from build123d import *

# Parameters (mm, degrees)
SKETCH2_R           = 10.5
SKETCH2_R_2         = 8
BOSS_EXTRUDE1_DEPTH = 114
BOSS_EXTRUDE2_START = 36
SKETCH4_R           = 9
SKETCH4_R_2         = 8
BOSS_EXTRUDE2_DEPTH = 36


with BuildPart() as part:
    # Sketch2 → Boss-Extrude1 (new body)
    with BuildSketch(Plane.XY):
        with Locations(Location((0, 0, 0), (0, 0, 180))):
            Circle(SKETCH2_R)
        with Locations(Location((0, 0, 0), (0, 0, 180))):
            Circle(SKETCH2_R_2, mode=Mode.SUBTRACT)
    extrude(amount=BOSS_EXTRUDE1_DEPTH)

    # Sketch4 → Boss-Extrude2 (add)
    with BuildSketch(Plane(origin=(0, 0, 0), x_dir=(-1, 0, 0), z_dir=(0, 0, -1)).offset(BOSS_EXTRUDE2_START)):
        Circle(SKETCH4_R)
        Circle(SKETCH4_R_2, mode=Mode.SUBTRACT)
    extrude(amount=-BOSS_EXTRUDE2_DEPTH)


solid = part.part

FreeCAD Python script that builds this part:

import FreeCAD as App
import Part
import Sketcher

doc = App.newDocument("Part")
params = doc.addObject("Spreadsheet::Sheet", "Params")
for row, (alias, value) in enumerate([
    ("sketch1_diameter", "21 mm"),
    ("sketch1_diameter2", "16 mm"),
    ("pad1_length", "114 mm"),
    ("sketch2_diameter", "18 mm"),
    ("sketch2_diameter2", "16 mm"),
    ("pad2_length", "36 mm"),
], start=1):
    params.set(f"A{row}", alias)
    params.set(f"B{row}", "=" + value)
    params.setAlias(f"B{row}", alias)

body = doc.addObject("PartDesign::Body", "Body")

# Sketch on XY plane
sketch1 = body.newObject("Sketcher::SketchObject", "Sketch")
sketch1.AttachmentSupport = (doc.getObject("XY_Plane"), [""])
sketch1.MapMode = "FlatFace"
sketch1.addGeometry([
    Part.Circle(App.Vector(0, 0, 0), App.Vector(0, 0, 1), 10),
    Part.Circle(App.Vector(0, 0, 0), App.Vector(0, 0, 1), 8),
], False)
sketch1.addConstraint([
    Sketcher.Constraint("Coincident", 0, 3, -1, 1),
    Sketcher.Constraint("Coincident", 1, 3, -1, 1),
    Sketcher.Constraint("Diameter", 0, 21.0),
    Sketcher.Constraint("Diameter", 1, 16.0),
])
sketch1.setExpression("Constraints[2]", "Params.sketch1_diameter")
sketch1.setExpression("Constraints[3]", "Params.sketch1_diameter2")
pad1 = body.newObject("PartDesign::Pad", "Pad")
pad1.Profile = sketch1
pad1.setExpression("Length", "Params.pad1_length")

# Sketch on XY plane
sketch2 = body.newObject("Sketcher::SketchObject", "Sketch001")
sketch2.AttachmentSupport = (doc.getObject("XY_Plane"), [""])
sketch2.MapMode = "FlatFace"
sketch2.AttachmentOffset = App.Placement(App.Vector(0, 0, -36), App.Rotation())
sketch2.addGeometry([
    Part.Circle(App.Vector(0, 0, 0), App.Vector(0, 0, 1), 9),
    Part.Circle(App.Vector(0, 0, 0), App.Vector(0, 0, 1), 8),
], False)
sketch2.addConstraint([
    Sketcher.Constraint("Coincident", 0, 3, -1, 1),
    Sketcher.Constraint("Coincident", 1, 3, -1, 1),
    Sketcher.Constraint("Diameter", 0, 18.0),
    Sketcher.Constraint("Diameter", 1, 16.0),
])
sketch2.setExpression("Constraints[2]", "Params.sketch2_diameter")
sketch2.setExpression("Constraints[3]", "Params.sketch2_diameter2")
pad2 = body.newObject("PartDesign::Pad", "Pad001")
pad2.Profile = sketch2
pad2.setExpression("Length", "Params.pad2_length")

doc.recompute()
